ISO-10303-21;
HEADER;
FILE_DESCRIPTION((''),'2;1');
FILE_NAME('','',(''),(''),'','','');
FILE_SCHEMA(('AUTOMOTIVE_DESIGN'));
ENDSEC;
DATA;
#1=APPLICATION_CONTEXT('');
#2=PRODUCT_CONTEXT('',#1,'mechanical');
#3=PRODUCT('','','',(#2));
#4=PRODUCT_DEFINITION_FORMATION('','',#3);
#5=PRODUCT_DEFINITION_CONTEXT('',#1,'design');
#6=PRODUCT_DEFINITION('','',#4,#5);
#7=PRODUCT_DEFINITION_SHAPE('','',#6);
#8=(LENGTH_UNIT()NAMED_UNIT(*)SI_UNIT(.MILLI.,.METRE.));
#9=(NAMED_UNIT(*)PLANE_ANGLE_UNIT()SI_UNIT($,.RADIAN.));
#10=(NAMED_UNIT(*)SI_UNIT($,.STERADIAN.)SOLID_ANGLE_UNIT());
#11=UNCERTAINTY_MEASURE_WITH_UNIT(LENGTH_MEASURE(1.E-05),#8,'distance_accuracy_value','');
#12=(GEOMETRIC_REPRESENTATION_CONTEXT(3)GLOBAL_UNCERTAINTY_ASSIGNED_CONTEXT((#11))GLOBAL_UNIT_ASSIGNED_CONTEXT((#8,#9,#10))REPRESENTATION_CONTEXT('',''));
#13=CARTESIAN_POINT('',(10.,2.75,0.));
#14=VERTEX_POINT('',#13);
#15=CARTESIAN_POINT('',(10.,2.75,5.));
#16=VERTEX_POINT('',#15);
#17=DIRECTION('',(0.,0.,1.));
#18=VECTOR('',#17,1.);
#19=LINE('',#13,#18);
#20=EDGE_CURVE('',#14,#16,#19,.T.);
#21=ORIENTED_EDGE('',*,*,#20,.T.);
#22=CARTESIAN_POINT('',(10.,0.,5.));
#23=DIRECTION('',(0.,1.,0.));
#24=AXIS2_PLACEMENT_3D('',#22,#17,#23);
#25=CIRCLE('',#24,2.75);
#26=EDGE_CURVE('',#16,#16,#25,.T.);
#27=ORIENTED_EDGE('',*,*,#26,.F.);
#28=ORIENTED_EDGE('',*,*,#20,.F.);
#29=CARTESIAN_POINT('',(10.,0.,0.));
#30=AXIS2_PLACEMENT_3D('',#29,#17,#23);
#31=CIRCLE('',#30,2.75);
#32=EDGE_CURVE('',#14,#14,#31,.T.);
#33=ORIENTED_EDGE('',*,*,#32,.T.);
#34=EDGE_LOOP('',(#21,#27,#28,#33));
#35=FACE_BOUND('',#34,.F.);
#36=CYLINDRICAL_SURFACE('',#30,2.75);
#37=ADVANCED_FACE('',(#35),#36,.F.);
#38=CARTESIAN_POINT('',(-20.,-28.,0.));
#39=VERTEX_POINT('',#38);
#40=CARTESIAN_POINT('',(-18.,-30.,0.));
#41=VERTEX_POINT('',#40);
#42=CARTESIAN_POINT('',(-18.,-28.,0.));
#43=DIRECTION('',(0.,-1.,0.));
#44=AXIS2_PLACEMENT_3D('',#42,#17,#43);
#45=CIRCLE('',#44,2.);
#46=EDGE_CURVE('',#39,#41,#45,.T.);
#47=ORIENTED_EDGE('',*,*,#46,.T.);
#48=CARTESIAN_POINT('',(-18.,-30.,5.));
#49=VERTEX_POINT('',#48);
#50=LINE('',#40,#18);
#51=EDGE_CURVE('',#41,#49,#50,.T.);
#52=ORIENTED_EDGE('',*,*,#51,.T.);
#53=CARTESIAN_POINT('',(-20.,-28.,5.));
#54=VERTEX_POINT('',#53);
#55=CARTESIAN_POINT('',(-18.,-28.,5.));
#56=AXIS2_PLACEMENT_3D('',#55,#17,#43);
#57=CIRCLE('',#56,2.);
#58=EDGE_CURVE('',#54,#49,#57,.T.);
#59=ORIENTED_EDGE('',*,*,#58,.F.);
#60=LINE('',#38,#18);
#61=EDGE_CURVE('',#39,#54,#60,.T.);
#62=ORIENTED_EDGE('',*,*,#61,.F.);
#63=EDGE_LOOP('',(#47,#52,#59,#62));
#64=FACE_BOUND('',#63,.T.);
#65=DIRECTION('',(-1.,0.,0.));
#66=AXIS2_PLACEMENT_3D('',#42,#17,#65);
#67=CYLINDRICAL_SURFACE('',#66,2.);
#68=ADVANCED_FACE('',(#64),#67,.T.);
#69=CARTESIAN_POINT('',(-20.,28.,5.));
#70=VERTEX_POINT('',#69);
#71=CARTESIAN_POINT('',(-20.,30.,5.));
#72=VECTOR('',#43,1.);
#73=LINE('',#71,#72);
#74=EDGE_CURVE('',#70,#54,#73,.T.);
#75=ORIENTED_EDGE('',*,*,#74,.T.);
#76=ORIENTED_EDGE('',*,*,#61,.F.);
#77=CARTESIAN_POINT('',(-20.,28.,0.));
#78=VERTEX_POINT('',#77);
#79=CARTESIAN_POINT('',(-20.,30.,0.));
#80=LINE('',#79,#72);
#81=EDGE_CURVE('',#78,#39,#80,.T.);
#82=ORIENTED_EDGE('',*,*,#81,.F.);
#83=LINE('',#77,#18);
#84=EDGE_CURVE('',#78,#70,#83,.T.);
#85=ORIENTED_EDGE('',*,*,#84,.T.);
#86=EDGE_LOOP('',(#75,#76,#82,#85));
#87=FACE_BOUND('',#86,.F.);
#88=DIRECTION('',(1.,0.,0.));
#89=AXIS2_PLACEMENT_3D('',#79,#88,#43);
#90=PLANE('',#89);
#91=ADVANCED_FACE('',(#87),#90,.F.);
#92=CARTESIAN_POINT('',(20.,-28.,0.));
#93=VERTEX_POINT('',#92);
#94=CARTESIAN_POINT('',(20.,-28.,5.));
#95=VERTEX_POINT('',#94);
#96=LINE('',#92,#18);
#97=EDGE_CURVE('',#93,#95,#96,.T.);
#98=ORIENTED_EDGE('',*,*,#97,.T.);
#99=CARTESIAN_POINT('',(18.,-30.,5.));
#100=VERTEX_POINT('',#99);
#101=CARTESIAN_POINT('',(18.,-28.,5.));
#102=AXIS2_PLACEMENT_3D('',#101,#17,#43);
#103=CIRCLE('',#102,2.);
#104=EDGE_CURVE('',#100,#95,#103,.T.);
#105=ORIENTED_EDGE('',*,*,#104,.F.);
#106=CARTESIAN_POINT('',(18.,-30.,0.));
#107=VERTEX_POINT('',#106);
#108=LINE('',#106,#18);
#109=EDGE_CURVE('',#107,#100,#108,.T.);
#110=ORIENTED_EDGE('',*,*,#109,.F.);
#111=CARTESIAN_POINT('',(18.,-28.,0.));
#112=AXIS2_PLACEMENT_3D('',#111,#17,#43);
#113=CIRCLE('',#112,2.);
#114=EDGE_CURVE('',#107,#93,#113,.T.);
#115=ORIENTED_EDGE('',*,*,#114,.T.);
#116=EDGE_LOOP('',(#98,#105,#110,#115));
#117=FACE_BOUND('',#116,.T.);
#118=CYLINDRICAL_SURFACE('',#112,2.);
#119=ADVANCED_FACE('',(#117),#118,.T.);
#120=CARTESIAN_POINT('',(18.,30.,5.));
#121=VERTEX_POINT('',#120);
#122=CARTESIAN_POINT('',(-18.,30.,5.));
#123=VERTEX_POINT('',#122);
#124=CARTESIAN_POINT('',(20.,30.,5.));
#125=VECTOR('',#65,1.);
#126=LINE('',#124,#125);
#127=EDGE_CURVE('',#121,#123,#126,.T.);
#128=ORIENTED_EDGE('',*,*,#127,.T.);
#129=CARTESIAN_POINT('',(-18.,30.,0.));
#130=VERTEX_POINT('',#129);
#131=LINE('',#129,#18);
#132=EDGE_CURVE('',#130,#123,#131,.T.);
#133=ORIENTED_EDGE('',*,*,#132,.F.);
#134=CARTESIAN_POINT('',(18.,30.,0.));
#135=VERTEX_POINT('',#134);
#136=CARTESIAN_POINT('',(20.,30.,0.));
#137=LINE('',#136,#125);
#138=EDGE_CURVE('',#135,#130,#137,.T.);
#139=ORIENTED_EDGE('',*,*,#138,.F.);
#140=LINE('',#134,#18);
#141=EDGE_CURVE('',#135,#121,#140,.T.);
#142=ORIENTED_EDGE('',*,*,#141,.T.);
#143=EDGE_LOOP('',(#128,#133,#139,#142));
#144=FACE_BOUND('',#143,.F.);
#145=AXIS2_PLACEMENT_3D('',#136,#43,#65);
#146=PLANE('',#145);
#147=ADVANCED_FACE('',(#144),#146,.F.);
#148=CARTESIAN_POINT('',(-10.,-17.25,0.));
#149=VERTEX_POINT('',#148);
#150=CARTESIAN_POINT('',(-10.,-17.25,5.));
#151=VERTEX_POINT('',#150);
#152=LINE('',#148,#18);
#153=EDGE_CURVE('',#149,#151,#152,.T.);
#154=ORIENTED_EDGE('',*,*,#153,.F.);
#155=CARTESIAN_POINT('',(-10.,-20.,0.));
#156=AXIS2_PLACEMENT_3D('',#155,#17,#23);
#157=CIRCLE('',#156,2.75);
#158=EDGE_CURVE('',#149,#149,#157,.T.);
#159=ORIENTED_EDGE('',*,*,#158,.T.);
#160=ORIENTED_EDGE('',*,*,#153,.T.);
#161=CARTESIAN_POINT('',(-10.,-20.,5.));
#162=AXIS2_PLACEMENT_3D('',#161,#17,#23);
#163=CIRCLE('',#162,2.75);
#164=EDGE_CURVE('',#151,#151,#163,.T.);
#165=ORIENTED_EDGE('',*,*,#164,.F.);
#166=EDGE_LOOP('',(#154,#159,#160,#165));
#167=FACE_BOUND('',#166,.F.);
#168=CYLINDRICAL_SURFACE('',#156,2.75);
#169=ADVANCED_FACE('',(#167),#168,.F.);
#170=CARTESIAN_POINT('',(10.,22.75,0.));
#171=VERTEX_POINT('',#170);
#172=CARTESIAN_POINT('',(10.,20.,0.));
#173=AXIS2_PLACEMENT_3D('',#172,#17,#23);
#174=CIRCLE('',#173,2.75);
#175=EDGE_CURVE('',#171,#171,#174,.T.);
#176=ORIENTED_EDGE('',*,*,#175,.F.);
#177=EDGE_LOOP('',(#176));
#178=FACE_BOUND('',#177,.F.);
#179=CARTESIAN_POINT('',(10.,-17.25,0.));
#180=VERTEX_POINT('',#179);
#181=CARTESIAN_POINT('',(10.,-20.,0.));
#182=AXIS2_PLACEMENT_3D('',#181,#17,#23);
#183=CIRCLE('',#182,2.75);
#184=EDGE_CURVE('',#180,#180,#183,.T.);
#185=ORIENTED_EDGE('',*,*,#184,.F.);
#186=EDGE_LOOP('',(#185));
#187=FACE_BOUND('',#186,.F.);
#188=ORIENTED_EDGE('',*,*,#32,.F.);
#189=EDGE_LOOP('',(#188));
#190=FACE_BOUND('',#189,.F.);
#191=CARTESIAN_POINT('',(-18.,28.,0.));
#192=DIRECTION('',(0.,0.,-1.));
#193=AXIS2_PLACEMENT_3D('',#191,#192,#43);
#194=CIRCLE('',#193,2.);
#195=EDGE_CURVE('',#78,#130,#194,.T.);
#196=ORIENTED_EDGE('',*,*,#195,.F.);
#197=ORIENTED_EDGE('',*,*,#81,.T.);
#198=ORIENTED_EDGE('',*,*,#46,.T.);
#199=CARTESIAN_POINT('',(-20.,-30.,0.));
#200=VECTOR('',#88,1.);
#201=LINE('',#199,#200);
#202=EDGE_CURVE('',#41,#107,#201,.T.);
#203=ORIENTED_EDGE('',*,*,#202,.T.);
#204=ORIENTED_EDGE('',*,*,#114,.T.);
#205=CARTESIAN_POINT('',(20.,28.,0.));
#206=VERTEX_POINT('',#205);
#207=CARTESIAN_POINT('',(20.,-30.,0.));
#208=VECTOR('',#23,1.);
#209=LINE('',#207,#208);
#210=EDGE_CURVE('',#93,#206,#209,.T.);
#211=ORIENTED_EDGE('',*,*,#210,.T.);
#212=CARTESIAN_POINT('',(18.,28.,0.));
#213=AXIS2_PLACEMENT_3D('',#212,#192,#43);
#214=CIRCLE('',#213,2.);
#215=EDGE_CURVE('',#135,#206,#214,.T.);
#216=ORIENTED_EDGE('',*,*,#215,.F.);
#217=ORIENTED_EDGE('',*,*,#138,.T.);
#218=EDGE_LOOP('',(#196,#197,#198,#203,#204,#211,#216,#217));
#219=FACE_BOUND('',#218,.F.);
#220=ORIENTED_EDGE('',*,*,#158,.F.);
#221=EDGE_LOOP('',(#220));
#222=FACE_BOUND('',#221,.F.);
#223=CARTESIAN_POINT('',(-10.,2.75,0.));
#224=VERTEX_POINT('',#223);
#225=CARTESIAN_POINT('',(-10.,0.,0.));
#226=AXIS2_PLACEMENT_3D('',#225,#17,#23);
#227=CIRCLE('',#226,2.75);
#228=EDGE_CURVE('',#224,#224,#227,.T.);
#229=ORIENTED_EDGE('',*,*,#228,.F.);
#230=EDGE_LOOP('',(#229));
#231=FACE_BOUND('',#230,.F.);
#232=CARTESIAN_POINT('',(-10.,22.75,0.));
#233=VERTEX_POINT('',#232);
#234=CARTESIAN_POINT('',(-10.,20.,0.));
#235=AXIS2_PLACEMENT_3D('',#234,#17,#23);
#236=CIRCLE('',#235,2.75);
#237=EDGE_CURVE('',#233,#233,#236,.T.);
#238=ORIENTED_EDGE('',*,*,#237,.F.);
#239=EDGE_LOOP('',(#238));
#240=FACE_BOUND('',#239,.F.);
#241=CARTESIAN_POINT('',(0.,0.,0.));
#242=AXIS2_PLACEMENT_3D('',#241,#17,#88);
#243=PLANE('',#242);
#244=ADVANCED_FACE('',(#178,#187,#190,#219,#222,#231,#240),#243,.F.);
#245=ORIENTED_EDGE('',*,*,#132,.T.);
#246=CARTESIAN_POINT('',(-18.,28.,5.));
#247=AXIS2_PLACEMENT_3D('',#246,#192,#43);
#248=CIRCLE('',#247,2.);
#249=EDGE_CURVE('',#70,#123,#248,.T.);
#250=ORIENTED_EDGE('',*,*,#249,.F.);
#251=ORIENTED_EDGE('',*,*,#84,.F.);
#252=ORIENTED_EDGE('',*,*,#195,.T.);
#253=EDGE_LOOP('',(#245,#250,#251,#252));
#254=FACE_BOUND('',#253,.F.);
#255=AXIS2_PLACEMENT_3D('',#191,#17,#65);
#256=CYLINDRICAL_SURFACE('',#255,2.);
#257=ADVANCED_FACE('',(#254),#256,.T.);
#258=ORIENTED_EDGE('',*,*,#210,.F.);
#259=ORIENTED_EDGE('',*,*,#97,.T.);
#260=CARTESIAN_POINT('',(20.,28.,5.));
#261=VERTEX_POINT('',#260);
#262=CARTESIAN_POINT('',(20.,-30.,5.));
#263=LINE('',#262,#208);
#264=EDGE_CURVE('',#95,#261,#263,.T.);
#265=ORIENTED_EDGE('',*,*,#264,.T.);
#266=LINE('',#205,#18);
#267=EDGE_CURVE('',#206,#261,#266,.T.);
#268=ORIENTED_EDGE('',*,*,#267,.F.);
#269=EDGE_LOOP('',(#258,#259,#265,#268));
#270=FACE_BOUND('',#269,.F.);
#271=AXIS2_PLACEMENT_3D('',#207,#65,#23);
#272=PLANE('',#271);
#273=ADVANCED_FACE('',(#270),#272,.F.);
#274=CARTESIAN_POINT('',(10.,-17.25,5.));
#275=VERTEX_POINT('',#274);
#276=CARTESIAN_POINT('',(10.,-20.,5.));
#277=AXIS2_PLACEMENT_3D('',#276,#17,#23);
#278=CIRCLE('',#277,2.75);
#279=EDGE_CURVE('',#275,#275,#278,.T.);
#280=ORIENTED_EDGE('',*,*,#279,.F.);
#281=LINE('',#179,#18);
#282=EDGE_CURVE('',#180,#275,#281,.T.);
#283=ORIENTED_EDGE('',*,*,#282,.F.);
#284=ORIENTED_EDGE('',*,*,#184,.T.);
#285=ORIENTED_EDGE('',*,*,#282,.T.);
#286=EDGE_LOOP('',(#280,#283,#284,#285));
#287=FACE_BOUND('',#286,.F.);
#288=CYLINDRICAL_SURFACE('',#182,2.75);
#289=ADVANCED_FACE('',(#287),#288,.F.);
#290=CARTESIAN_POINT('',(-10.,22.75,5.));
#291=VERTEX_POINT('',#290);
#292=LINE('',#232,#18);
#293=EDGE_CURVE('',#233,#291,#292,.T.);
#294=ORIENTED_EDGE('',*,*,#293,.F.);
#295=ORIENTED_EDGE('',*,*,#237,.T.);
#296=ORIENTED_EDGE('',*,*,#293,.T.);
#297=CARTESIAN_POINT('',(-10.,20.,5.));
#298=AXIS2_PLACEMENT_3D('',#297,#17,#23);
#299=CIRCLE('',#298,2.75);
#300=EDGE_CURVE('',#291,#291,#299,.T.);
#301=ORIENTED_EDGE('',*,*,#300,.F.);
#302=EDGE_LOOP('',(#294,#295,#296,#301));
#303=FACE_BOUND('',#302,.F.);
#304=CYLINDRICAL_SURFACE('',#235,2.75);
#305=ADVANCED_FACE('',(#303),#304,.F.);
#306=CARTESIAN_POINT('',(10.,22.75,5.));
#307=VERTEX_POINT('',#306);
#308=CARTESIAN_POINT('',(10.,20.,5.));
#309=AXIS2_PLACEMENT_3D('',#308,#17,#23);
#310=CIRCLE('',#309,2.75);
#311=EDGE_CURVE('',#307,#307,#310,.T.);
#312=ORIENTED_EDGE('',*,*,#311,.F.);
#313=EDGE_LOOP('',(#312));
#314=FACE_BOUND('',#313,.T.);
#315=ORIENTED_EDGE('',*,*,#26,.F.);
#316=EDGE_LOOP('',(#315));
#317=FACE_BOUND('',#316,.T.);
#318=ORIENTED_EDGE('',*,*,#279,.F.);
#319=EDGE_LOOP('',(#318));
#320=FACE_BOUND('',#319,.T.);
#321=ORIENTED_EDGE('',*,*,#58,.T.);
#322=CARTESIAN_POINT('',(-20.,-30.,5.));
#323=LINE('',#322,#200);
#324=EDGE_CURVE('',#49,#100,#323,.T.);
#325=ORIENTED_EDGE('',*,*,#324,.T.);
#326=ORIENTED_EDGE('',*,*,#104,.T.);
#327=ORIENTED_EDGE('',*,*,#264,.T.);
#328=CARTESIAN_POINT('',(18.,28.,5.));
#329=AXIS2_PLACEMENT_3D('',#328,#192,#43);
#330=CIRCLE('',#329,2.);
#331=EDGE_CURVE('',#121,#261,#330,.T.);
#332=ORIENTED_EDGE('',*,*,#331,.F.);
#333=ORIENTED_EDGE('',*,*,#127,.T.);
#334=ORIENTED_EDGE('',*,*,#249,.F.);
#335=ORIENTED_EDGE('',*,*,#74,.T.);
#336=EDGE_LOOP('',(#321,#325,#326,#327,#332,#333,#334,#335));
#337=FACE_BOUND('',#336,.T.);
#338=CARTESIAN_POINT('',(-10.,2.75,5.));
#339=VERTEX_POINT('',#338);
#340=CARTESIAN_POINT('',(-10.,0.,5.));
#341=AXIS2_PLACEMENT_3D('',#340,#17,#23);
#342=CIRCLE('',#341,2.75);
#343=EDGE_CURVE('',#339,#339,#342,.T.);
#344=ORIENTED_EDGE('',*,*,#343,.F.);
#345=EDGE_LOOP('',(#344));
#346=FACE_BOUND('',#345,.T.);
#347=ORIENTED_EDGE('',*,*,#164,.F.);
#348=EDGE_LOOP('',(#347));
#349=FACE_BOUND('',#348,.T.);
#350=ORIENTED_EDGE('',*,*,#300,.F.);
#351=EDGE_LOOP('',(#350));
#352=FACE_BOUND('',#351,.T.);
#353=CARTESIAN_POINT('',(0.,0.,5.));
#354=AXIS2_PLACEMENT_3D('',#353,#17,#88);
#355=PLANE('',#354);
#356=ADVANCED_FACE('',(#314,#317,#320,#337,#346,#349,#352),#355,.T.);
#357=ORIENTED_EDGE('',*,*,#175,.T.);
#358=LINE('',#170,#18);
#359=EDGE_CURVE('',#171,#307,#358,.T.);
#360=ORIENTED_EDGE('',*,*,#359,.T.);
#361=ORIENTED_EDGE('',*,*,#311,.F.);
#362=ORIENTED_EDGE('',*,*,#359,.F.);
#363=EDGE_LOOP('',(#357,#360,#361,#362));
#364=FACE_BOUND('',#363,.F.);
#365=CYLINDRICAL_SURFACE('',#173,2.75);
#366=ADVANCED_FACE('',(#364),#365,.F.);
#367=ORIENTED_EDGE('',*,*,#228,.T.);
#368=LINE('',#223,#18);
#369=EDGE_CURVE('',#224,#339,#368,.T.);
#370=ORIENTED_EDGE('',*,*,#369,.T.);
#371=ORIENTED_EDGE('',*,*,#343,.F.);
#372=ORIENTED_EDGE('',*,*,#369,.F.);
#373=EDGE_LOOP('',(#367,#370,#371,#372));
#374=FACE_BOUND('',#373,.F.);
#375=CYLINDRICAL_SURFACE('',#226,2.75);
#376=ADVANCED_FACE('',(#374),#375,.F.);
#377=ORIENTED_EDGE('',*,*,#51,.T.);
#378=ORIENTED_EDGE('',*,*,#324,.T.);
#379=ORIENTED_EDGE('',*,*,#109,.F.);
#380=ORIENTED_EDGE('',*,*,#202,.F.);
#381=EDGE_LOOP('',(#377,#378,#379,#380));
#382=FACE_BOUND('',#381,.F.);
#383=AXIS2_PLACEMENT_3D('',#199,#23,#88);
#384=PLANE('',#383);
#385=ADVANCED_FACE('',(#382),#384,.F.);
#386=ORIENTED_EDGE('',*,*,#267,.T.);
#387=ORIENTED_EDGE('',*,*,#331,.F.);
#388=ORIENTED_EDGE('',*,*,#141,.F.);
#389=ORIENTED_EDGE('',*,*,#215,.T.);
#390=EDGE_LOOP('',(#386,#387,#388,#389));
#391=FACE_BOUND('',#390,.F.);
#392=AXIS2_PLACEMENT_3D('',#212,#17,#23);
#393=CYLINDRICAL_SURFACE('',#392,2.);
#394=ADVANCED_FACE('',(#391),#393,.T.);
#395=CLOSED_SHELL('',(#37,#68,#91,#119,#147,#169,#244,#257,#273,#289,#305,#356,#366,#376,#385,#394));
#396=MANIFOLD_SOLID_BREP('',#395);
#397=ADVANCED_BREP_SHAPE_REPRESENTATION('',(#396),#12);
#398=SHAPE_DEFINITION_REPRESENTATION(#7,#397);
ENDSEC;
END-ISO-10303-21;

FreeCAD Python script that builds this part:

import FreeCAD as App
import Part
import Sketcher
from FreeCAD import Vector


def edges_at(feature, points):
    """Names of the edges that pass closest to the given points."""
    edges = feature.Shape.Edges
    near = lambda p: min(range(len(edges)), key=lambda i: edges[i].distToShape(Part.Vertex(*p))[0])
    return sorted({f"Edge{near(p) + 1}" for p in points})


def add_polygon(sketch, points):
    """Adds a closed chain of lines whose ends are joined by coincident constraints."""
    first, n = sketch.GeometryCount, len(points)
    for a, b in zip(points, points[1:] + points[:1]):
        sketch.addGeometry(Part.LineSegment(App.Vector(*a, 0), App.Vector(*b, 0)), False)
    for i in range(n):
        sketch.addConstraint(Sketcher.Constraint("Coincident", first + i, 2, first + (i + 1) % n, 1))

doc = App.newDocument("Part")
body = doc.addObject("PartDesign::Body", "Body")

sketch1 = doc.addObject("Sketcher::SketchObject", "Sketch")
body.addObject(sketch1)
sketch1.AttachmentSupport = (doc.XY_Plane, [""])
sketch1.MapMode = "FlatFace"
add_polygon(sketch1, [(-20, 30), (-20, -30), (20, -30), (20, 30)])
sketch1.addConstraint([
    Sketcher.Constraint("Vertical", 0),
    Sketcher.Constraint("Horizontal", 1),
    Sketcher.Constraint("Vertical", 2),
    Sketcher.Constraint("Horizontal", 3),
    Sketcher.Constraint("Symmetric", 0, 2, 2, 2, -1, 1),
    Sketcher.Constraint("DistanceX", 1, 1, 1, 2, 40.0),
    Sketcher.Constraint("DistanceY", 0, 2, 0, 1, 60.0),
])
pad1 = doc.addObject("PartDesign::Pad", "Pad")
body.addObject(pad1)
pad1.Profile = sketch1
pad1.Length = 5

sketch2 = doc.addObject("Sketcher::SketchObject", "Sketch001")
body.addObject(sketch2)
sketch2.AttachmentSupport = (doc.XY_Plane, [""])
sketch2.MapMode = "FlatFace"
sketch2.addGeometry([
    Part.Circle(Vector(-10, 20, 0), Vector(0, 0, 1), 2.8),
    Part.Circle(Vector(-10, 0, 0), Vector(0, 0, 1), 2.8),
    Part.Circle(Vector(-10, -20, 0), Vector(0, 0, 1), 2.8),
    Part.Circle(Vector(10, -20, 0), Vector(0, 0, 1), 2.8),
    Part.Circle(Vector(10, 0, 0), Vector(0, 0, 1), 2.8),
    Part.Circle(Vector(10, 20, 0), Vector(0, 0, 1), 2.8),
], False)
sketch2.addConstraint([
    Sketcher.Constraint("Equal", 0, 1),
    Sketcher.Constraint("Equal", 1, 2),
    Sketcher.Constraint("Equal", 2, 3),
    Sketcher.Constraint("Equal", 3, 4),
    Sketcher.Constraint("Equal", 4, 5),
    Sketcher.Constraint("Symmetric", 0, 3, 3, 3, -1, 1),
    Sketcher.Constraint("Symmetric", 1, 3, 4, 3, -1, 1),
    Sketcher.Constraint("Symmetric", 2, 3, 5, 3, -1, 1),
    Sketcher.Constraint("Symmetric", 2, 3, 3, 3, -2),
    Sketcher.Constraint("PointOnObject", 1, 3, -1),
    Sketcher.Constraint("Vertical", 0, 3, 1, 3),
    Sketcher.Constraint("Diameter", 0, 5.5),
    Sketcher.Constraint("DistanceX", 0, 3, -1, 1, 10.0),
    Sketcher.Constraint("DistanceY", -1, 1, 0, 3, 20.0),
])
doc.recompute()
hole = doc.addObject("PartDesign::Hole", "Hole")
body.addObject(hole)
hole.Profile = sketch2
hole.ThreadType = "None"
hole.Diameter = 5.5
hole.DepthType = "ThroughAll"
hole.Reversed = True
doc.recompute()

fillet = doc.addObject("PartDesign::Fillet", "Fillet")
body.addObject(fillet)
fillet.Base = (hole, edges_at(hole, [
    (-20, 30, 2.5),
    (20, 30, 2.5),
    (-20, -30, 2.5),
    (20, -30, 2.5),
]))
fillet.Radius = 2

doc.recompute()
